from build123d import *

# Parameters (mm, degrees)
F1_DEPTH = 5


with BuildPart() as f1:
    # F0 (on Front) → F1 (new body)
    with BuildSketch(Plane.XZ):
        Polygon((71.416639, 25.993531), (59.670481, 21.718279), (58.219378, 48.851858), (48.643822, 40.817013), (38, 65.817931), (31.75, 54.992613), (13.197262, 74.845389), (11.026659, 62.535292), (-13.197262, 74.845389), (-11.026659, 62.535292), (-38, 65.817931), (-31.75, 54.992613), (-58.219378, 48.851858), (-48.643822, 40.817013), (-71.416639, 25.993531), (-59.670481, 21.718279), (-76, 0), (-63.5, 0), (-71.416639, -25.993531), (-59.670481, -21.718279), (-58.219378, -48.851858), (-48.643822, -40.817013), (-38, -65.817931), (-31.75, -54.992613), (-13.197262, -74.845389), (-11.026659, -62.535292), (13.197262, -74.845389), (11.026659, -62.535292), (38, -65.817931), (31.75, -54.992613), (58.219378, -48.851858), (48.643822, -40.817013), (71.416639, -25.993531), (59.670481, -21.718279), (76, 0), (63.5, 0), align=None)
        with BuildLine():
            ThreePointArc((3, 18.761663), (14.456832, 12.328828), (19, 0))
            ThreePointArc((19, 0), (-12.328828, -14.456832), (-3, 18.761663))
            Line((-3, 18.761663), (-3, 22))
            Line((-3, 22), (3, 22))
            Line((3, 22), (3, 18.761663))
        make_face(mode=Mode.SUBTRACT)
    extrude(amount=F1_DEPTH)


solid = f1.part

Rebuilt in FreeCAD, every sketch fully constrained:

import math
import FreeCAD as App
import Part
import Sketcher
Q = App.Units.Quantity


def add_polygon(sketch, points):
    """Adds a closed chain of lines whose ends are joined by coincident constraints."""
    first, n = sketch.GeometryCount, len(points)
    for a, b in zip(points, points[1:] + points[:1]):
        sketch.addGeometry(Part.LineSegment(App.Vector(*a, 0), App.Vector(*b, 0)), False)
    for i in range(n):
        sketch.addConstraint(Sketcher.Constraint("Coincident", first + i, 2, first + (i + 1) % n, 1))

doc = App.newDocument("Part")
body = doc.addObject("PartDesign::Body", "Body")

# Sketch on XZ plane
sketch1 = doc.addObject("Sketcher::SketchObject", "Sketch")
body.addObject(sketch1)
sketch1.AttachmentSupport = (doc.XZ_Plane, [""])
sketch1.MapMode = "FlatFace"
add_polygon(sketch1, [(71.4, 26), (59.7, 21.7), (58.2, 48.9), (48.6, 40.8), (38, 65.8), (31.8, 55), (13.2, 74.8), (11, 62.5), (-13.2, 74.8), (-11, 62.5), (-38, 65.8), (-31.8, 55), (-58.2, 48.9), (-48.6, 40.8), (-71.4, 26), (-59.7, 21.7), (-76, 0), (-63.5, 0), (-71.4, -26), (-59.7, -21.7), (-58.2, -48.9), (-48.6, -40.8), (-38, -65.8), (-31.8, -55), (-13.2, -74.8), (-11, -62.5), (13.2, -74.8), (11, -62.5), (38, -65.8), (31.8, -55), (58.2, -48.9), (48.6, -40.8), (71.4, -26), (59.7, -21.7), (76, 0), (63.5, 0)])  # lines 0-35
sketch1.addGeometry(Part.LineSegment(App.Vector(3, 22, 0), App.Vector(3, 18.8, 0)), False)  # 36
sketch1.addGeometry(Part.ArcOfCircle(Part.Circle(App.Vector(0, 0, 0), App.Vector(0, 0, 1), 19), math.radians(0), math.radians(81)), False)  # 37
sketch1.addGeometry(Part.ArcOfCircle(Part.Circle(App.Vector(0, 0, 0), App.Vector(0, 0, 1), 19), math.radians(99), math.radians(360)), False)  # 38
sketch1.addGeometry(Part.LineSegment(App.Vector(-3, 18.8, 0), App.Vector(-3, 22, 0)), False)  # 39
sketch1.addGeometry(Part.LineSegment(App.Vector(-3, 22, 0), App.Vector(3, 22, 0)), False)  # 40
sketch1.addConstraint([
    Sketcher.Constraint("Coincident", 36, 2, 37, 2),
    Sketcher.Constraint("Tangent", 37, 1, 38, 2),
    Sketcher.Constraint("Coincident", 38, 1, 39, 1),
    Sketcher.Constraint("Coincident", 39, 2, 40, 1),
    Sketcher.Constraint("Coincident", 40, 2, 36, 1),
    Sketcher.Constraint("Horizontal", 16),
    Sketcher.Constraint("Horizontal", 34),
    Sketcher.Constraint("Vertical", 36),
    Sketcher.Constraint("Vertical", 39),
    Sketcher.Constraint("Horizontal", 40),
    Sketcher.Constraint("Coincident", 37, 3, -1, 1),
    Sketcher.Constraint("Equal", 37, 38),
    Sketcher.Constraint("Symmetric", 0, 2, 18, 2, -1, 1),
    Sketcher.Constraint("Symmetric", 1, 2, 19, 2, -1, 1),
    Sketcher.Constraint("Symmetric", 2, 2, 20, 2, -1, 1),
    Sketcher.Constraint("Symmetric", 3, 2, 21, 2, -1, 1),
    Sketcher.Constraint("Symmetric", 4, 2, 22, 2, -1, 1),
    Sketcher.Constraint("Symmetric", 5, 2, 23, 2, -1, 1),
    Sketcher.Constraint("Symmetric", 6, 2, 24, 2, -1, 1),
    Sketcher.Constraint("Symmetric", 7, 2, 25, 2, -1, 1),
    Sketcher.Constraint("Symmetric", 8, 2, 26, 2, -1, 1),
    Sketcher.Constraint("Symmetric", 9, 2, 27, 2, -1, 1),
    Sketcher.Constraint("Symmetric", 10, 2, 28, 2, -1, 1),
    Sketcher.Constraint("Symmetric", 11, 2, 29, 2, -1, 1),
    Sketcher.Constraint("Symmetric", 12, 2, 30, 2, -1, 1),
    Sketcher.Constraint("Symmetric", 13, 2, 31, 2, -1, 1),
    Sketcher.Constraint("Symmetric", 14, 2, 32, 2, -1, 1),
    Sketcher.Constraint("Symmetric", 15, 2, 33, 2, -1, 1),
    Sketcher.Constraint("Symmetric", 17, 2, 35, 2, -1, 1),
    Sketcher.Constraint("Symmetric", 5, 2, 7, 2, -2),
    Sketcher.Constraint("Symmetric", 6, 2, 8, 2, -2),
    Sketcher.Constraint("Symmetric", 3, 2, 9, 2, -2),
    Sketcher.Constraint("Symmetric", 4, 2, 10, 2, -2),
    Sketcher.Constraint("Symmetric", 1, 2, 11, 2, -2),
    Sketcher.Constraint("Symmetric", 2, 2, 12, 2, -2),
    Sketcher.Constraint("Symmetric", 0, 2, 14, 2, -2),
    Sketcher.Constraint("Symmetric", 17, 2, 31, 2, -2),
    Sketcher.Constraint("Symmetric", 16, 2, 34, 2, -2),
    Sketcher.Constraint("PointOnObject", 37, 1, -1),
    Sketcher.Constraint("Horizontal", 36, 2, 38, 1),
    Sketcher.Constraint("Equal", 0, 2),
    Sketcher.Constraint("Equal", 1, 3),
    Sketcher.Constraint("Equal", 2, 4),
    Sketcher.Constraint("Equal", 3, 5),
    Sketcher.Constraint("Equal", 4, 6),
    Sketcher.Constraint("Equal", 5, 7),
    Sketcher.Constraint("Equal", 7, 9),
    Sketcher.Constraint("Equal", 9, 11),
    Sketcher.Constraint("Equal", 11, 13),
    Sketcher.Constraint("Equal", 13, 15),
    Sketcher.Constraint("Equal", 15, 17),
    Sketcher.Constraint("Radius", 37, 19.000001),
    Sketcher.Constraint("DistanceX", 40, 1, 40, 2, 6.0),
    Sketcher.Constraint("Angle", 0, Q("-159.999999 deg")),
    Sketcher.Constraint("Angle", 2, Q("-140.000002 deg")),
    Sketcher.Constraint("Angle", 4, Q("-119.999999 deg")),
    Sketcher.Constraint("Angle", 6, Q("-100.000003 deg")),
    Sketcher.Constraint("DistanceX", 16, 1, 16, 2, 12.5),
    Sketcher.Constraint("DistanceX", -1, 1, 3, 2, 38.0),
    Sketcher.Constraint("DistanceX", 15, 2, -1, 1, 76.0),
    Sketcher.Constraint("DistanceY", -1, 1, 39, 2, 22.0),
])
pad1 = doc.addObject("PartDesign::Pad", "Pad")
body.addObject(pad1)
pad1.Profile = sketch1
pad1.Length = 5

doc.recompute()
